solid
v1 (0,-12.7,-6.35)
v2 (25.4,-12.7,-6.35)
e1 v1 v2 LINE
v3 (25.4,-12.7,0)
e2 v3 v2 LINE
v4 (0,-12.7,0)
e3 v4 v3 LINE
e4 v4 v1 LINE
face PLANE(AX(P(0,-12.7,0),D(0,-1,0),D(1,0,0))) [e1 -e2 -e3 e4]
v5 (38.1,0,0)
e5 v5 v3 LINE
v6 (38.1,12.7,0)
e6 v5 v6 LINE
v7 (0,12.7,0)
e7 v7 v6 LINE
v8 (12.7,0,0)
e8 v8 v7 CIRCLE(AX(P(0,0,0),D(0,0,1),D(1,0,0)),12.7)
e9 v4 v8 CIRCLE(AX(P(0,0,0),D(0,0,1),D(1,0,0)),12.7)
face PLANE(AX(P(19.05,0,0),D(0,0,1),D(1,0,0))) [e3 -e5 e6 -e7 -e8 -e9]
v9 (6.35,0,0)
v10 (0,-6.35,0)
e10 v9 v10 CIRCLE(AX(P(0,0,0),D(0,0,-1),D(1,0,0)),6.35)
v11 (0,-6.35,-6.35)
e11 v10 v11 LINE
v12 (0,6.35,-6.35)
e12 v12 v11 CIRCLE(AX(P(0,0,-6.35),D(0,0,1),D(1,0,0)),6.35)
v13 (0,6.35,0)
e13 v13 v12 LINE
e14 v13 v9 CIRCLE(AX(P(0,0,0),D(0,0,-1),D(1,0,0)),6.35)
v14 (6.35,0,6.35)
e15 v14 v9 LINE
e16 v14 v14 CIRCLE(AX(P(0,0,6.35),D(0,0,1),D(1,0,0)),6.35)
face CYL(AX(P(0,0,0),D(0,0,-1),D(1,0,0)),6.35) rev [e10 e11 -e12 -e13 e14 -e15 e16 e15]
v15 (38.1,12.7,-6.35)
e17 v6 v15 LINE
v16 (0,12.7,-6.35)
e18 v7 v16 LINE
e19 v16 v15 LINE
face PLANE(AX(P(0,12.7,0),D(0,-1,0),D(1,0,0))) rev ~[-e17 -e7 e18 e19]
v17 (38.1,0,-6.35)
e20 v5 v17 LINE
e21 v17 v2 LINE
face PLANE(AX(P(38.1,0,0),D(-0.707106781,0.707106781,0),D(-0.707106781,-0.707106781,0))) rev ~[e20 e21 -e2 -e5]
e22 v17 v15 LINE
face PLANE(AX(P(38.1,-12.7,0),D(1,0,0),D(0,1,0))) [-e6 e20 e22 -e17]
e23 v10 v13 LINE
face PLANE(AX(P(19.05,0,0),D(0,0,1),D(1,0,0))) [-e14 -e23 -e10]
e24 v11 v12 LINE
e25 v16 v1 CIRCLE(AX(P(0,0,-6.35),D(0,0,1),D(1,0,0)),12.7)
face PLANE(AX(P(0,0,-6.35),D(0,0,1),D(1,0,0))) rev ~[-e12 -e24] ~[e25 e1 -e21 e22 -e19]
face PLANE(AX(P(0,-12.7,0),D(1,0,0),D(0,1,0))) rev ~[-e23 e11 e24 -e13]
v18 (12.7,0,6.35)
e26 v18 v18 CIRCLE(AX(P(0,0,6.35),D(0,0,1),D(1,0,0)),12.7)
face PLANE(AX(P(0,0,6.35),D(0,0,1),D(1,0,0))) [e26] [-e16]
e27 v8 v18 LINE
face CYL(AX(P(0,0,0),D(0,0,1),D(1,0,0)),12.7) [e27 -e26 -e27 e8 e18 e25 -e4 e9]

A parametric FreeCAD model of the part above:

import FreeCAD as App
import Part
import Sketcher

V = App.Vector
Q = App.Units.Quantity

doc = App.newDocument("Part")
body = doc.addObject("PartDesign::Body", "Body")

# Sketch on XY plane
sketch1 = body.newObject("Sketcher::SketchObject", "Sketch")
sketch1.AttachmentSupport = (doc.getObject("XY_Plane"), [""])
sketch1.MapMode = "FlatFace"
sketch1.addGeometry(Part.Circle(V(0, 0, 0), V(0, 0, 1), 13), False)
sketch1.addGeometry(Part.Circle(V(0, 0, 0), V(0, 0, 1), 6), False)
sketch1.addConstraint(Sketcher.Constraint("Coincident", 0, 3, -1, 1))
sketch1.addConstraint(Sketcher.Constraint("Coincident", 1, 3, -1, 1))
sketch1.addConstraint(Sketcher.Constraint("Diameter", 0, Q("1 in")))
sketch1.addConstraint(Sketcher.Constraint("Diameter", 1, Q("0.5 in")))
pad1 = body.newObject("PartDesign::Pad", "Pad")
pad1.Profile = sketch1
pad1.Length = Q("0.5 in")
pad1.Midplane = True

# Sketch on XY plane
sketch2 = body.newObject("Sketcher::SketchObject", "Sketch001")
sketch2.AttachmentSupport = (doc.getObject("XY_Plane"), [""])
sketch2.MapMode = "FlatFace"
sketch2.addGeometry(Part.LineSegment(V(0, 13, 0), V(0, -13, 0)), False)
sketch2.addGeometry(Part.LineSegment(V(0, -13, 0), V(38, -13, 0)), False)
sketch2.addGeometry(Part.LineSegment(V(38, -13, 0), V(38, 13, 0)), False)
sketch2.addGeometry(Part.LineSegment(V(38, 13, 0), V(0, 13, 0)), False)
sketch2.addConstraint(Sketcher.Constraint("Coincident", 0, 2, 1, 1))
sketch2.addConstraint(Sketcher.Constraint("Coincident", 1, 2, 2, 1))
sketch2.addConstraint(Sketcher.Constraint("Coincident", 2, 2, 3, 1))
sketch2.addConstraint(Sketcher.Constraint("Coincident", 3, 2, 0, 1))
sketch2.addConstraint(Sketcher.Constraint("Vertical", 0))
sketch2.addConstraint(Sketcher.Constraint("Horizontal", 1))
sketch2.addConstraint(Sketcher.Constraint("Vertical", 2))
sketch2.addConstraint(Sketcher.Constraint("Horizontal", 3))
sketch2.addConstraint(Sketcher.Constraint("Symmetric", 0, 2, 3, 2, -1, 1))
sketch2.addConstraint(Sketcher.Constraint("DistanceY", 0, 2, 0, 1, Q("1 in")))
sketch2.addConstraint(Sketcher.Constraint("DistanceX", 1, 1, 1, 2, Q("1.5 in")))
pad2 = body.newObject("PartDesign::Pad", "Pad001")
pad2.Profile = sketch2
pad2.Length = Q("0.25 in")
pad2.Reversed = True

# Sketch on XY plane
sketch3 = body.newObject("Sketcher::SketchObject", "Sketch002")
sketch3.AttachmentSupport = (doc.getObject("XY_Plane"), [""])
sketch3.MapMode = "FlatFace"
sketch3.addGeometry(Part.LineSegment(V(38, -13, 0), V(38, 0, 0)), False)
sketch3.addGeometry(Part.LineSegment(V(38, 0, 0), V(25, -13, 0)), False)
sketch3.addGeometry(Part.LineSegment(V(25, -13, 0), V(38, -13, 0)), False)
sketch3.addConstraint(Sketcher.Constraint("Coincident", 0, 2, 1, 1))
sketch3.addConstraint(Sketcher.Constraint("Coincident", 1, 2, 2, 1))
sketch3.addConstraint(Sketcher.Constraint("Coincident", 2, 2, 0, 1))
sketch3.addConstraint(Sketcher.Constraint("Vertical", 0))
sketch3.addConstraint(Sketcher.Constraint("Horizontal", 2))
sketch3.addConstraint(Sketcher.Constraint("PointOnObject", 0, 2, -1))
sketch3.addConstraint(Sketcher.Constraint("Equal", 2, 0))
sketch3.addConstraint(Sketcher.Constraint("DistanceX", 2, 1, 2, 2, Q("0.5 in")))
sketch3.addConstraint(Sketcher.Constraint("DistanceX", -1, 1, 1, 2, Q("1 in")))
pocket1 = body.newObject("PartDesign::Pocket", "Pocket")
pocket1.Profile = sketch3
pocket1.Type = "ThroughAll"

doc.recompute()
